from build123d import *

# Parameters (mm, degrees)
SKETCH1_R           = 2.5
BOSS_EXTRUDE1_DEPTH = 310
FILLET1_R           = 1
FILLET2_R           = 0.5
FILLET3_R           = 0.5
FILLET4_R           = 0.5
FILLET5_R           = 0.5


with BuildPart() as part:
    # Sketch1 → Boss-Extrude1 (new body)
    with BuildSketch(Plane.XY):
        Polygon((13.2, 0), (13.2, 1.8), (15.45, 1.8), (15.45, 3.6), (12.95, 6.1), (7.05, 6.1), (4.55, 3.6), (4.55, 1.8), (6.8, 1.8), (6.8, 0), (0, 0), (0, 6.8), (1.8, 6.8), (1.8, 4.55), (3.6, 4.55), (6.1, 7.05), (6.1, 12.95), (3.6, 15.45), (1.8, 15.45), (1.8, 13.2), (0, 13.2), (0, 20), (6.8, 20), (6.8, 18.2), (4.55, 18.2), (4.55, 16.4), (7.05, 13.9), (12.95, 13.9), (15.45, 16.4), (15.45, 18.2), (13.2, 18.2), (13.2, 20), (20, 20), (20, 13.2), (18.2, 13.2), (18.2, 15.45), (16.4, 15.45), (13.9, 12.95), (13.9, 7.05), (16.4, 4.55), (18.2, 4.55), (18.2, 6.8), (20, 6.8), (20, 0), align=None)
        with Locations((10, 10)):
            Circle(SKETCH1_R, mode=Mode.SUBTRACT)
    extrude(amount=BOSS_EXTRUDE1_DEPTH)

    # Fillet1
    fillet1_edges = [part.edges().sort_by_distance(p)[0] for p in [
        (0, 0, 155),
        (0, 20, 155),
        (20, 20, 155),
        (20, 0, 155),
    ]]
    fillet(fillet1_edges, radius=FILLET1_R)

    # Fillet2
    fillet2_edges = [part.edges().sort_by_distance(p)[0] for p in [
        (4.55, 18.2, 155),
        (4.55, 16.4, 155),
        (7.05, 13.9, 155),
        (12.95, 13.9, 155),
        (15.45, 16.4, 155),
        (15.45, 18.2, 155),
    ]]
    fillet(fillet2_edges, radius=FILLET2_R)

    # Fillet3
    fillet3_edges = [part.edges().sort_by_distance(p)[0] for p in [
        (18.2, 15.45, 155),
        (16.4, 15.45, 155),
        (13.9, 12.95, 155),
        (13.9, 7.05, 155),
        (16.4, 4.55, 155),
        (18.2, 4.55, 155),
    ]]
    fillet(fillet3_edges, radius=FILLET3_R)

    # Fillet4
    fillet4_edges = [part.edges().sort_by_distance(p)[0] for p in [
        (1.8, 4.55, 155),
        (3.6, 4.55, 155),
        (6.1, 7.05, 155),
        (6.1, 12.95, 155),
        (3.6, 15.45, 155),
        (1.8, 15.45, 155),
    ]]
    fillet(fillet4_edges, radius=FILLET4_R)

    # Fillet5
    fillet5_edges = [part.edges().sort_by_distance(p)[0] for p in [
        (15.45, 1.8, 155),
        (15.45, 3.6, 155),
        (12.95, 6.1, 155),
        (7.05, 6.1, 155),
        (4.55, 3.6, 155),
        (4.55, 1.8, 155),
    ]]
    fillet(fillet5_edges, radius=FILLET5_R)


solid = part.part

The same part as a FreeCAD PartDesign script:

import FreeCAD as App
import Part
import Sketcher


def edges_at(feature, points):
    """Names of the edges that pass closest to the given points."""
    edges = feature.Shape.Edges
    near = lambda p: min(range(len(edges)), key=lambda i: edges[i].distToShape(Part.Vertex(*p))[0])
    return sorted({f"Edge{near(p) + 1}" for p in points})


def add_polygon(sketch, points):
    """Adds a closed chain of lines whose ends are joined by coincident constraints."""
    first, n = sketch.GeometryCount, len(points)
    for a, b in zip(points, points[1:] + points[:1]):
        sketch.addGeometry(Part.LineSegment(App.Vector(*a, 0), App.Vector(*b, 0)), False)
    for i in range(n):
        sketch.addConstraint(Sketcher.Constraint("Coincident", first + i, 2, first + (i + 1) % n, 1))

doc = App.newDocument("Part")
body = doc.addObject("PartDesign::Body", "Body")

# Sketch on XY plane
sketch1 = body.newObject("Sketcher::SketchObject", "Sketch")
sketch1.AttachmentSupport = (doc.getObject("XY_Plane"), [""])
sketch1.MapMode = "FlatFace"
add_polygon(sketch1, [(13.2, 1.8), (13.2, 0), (20, 0), (20, 6.8), (18.2, 6.8), (18.2, 4.5), (16.4, 4.5), (13.9, 7), (13.9, 12.9), (16.4, 15.4), (18.2, 15.4), (18.2, 13.2), (20, 13.2), (20, 20), (13.2, 20), (13.2, 18.2), (15.4, 18.2), (15.4, 16.4), (12.9, 13.9), (7, 13.9), (4.5, 16.4), (4.5, 18.2), (6.8, 18.2), (6.8, 20), (0, 20), (0, 13.2), (1.8, 13.2), (1.8, 15.4), (3.6, 15.4), (6.1, 12.9), (6.1, 7), (3.6, 4.5), (1.8, 4.5), (1.8, 6.8), (0, 6.8), (0, 0), (6.8, 0), (6.8, 1.8), (4.5, 1.8), (4.5, 3.6), (7, 6.1), (12.9, 6.1), (15.4, 3.6), (15.4, 1.8)])  # lines 0-43
sketch1.addGeometry(Part.Circle(App.Vector(10, 10, 0), App.Vector(0, 0, 1), 2.5), False)  # 44
sketch1.addConstraint([
    Sketcher.Constraint("Vertical", 0),
    Sketcher.Constraint("Horizontal", 1),
    Sketcher.Constraint("Vertical", 2),
    Sketcher.Constraint("Horizontal", 3),
    Sketcher.Constraint("Vertical", 4),
    Sketcher.Constraint("Horizontal", 5),
    Sketcher.Constraint("Vertical", 7),
    Sketcher.Constraint("Horizontal", 9),
    Sketcher.Constraint("Vertical", 10),
    Sketcher.Constraint("Horizontal", 11),
    Sketcher.Constraint("Vertical", 12),
    Sketcher.Constraint("Horizontal", 13),
    Sketcher.Constraint("Vertical", 14),
    Sketcher.Constraint("Horizontal", 15),
    Sketcher.Constraint("Vertical", 16),
    Sketcher.Constraint("Horizontal", 18),
    Sketcher.Constraint("Vertical", 20),
    Sketcher.Constraint("Horizontal", 21),
    Sketcher.Constraint("Vertical", 22),
    Sketcher.Constraint("Horizontal", 23),
    Sketcher.Constraint("Vertical", 24),
    Sketcher.Constraint("Horizontal", 25),
    Sketcher.Constraint("Vertical", 26),
    Sketcher.Constraint("Horizontal", 27),
    Sketcher.Constraint("Vertical", 29),
    Sketcher.Constraint("Horizontal", 31),
    Sketcher.Constraint("Vertical", 32),
    Sketcher.Constraint("Horizontal", 33),
    Sketcher.Constraint("Vertical", 34),
    Sketcher.Constraint("Horizontal", 35),
    Sketcher.Constraint("Vertical", 36),
    Sketcher.Constraint("Horizontal", 37),
    Sketcher.Constraint("Vertical", 38),
    Sketcher.Constraint("Horizontal", 40),
    Sketcher.Constraint("Vertical", 42),
    Sketcher.Constraint("Horizontal", 43),
    Sketcher.Constraint("Coincident", 34, 2, -1, 1),
    Sketcher.Constraint("PointOnObject", 0, 2, -1),
    Sketcher.Constraint("PointOnObject", 23, 2, -2),
    Sketcher.Constraint("Perpendicular", 6, 8),
    Sketcher.Constraint("Parallel", 8, 17),
    Sketcher.Constraint("Perpendicular", 17, 19),
    Sketcher.Constraint("Parallel", 19, 28),
    Sketcher.Constraint("Perpendicular", 28, 30),
    Sketcher.Constraint("Parallel", 30, 39),
    Sketcher.Constraint("Perpendicular", 39, 41),
    Sketcher.Constraint("Horizontal", 16, 2, 19, 2),
    Sketcher.Constraint("Horizontal", 15, 2, 20, 2),
    Sketcher.Constraint("Horizontal", 13, 2, 22, 2),
    Sketcher.Constraint("Horizontal", 11, 2, 24, 2),
    Sketcher.Constraint("Horizontal", 9, 2, 26, 2),
    Sketcher.Constraint("Horizontal", 7, 2, 28, 2),
    Sketcher.Constraint("Horizontal", 6, 2, 29, 2),
    Sketcher.Constraint("Horizontal", 5, 2, 30, 2),
    Sketcher.Constraint("Horizontal", 3, 2, 32, 2),
    Sketcher.Constraint("Horizontal", 38, 2, 41, 2),
    Sketcher.Constraint("Horizontal", 37, 2, 42, 2),
    Sketcher.Constraint("Vertical", 5, 2, 8, 2),
    Sketcher.Constraint("Vertical", 4, 2, 9, 2),
    Sketcher.Constraint("Vertical", 2, 2, 11, 2),
    Sketcher.Constraint("Vertical", 0, 2, 13, 2),
    Sketcher.Constraint("Vertical", 27, 2, 30, 2),
    Sketcher.Constraint("Vertical", 26, 2, 31, 2),
    Sketcher.Constraint("Vertical", 22, 2, 35, 2),
    Sketcher.Constraint("Vertical", 20, 2, 37, 2),
    Sketcher.Constraint("Vertical", 18, 2, 39, 2),
    Sketcher.Constraint("Vertical", 17, 2, 40, 2),
    Sketcher.Constraint("Equal", 3, 5),
    Sketcher.Constraint("Equal", 15, 21),
    Sketcher.Constraint("Equal", 13, 23),
    Sketcher.Constraint("Equal", 11, 25),
    Sketcher.Constraint("Equal", 25, 27),
    Sketcher.Constraint("Equal", 33, 0),
    Sketcher.Constraint("Equal", 35, 2),
    Sketcher.Constraint("Equal", 43, 4),
    Sketcher.Constraint("Equal", 40, 7),
    Sketcher.Constraint("Equal", 4, 10),
    Sketcher.Constraint("Equal", 2, 12),
    Sketcher.Constraint("Equal", 0, 14),
    Sketcher.Constraint("Equal", 14, 16),
    Sketcher.Constraint("Equal", 36, 38),
    Sketcher.Constraint("Equal", 8, 17),
    Sketcher.Constraint("Diameter", 44, 5.0),
    Sketcher.Constraint("DistanceX", 1, 1, 1, 2, 6.8),
    Sketcher.Constraint("DistanceX", 3, 2, 3, 1, 1.8),
    Sketcher.Constraint("DistanceX", 18, 2, 18, 1, 5.9),
    Sketcher.Constraint("DistanceX", -1, 1, 44, 3, 10.0),
    Sketcher.Constraint("DistanceY", -1, 1, 44, 3, 10.0),
    Sketcher.Constraint("DistanceX", -1, 1, 1, 2, 20.0),
    Sketcher.Constraint("DistanceX", 15, 1, 15, 2, 2.25),
])
pad1 = body.newObject("PartDesign::Pad", "Pad")
pad1.Profile = sketch1
pad1.Length = 310
doc.recompute()

fillet = body.newObject("PartDesign::Fillet", "Fillet")
fillet.Base = (pad1, edges_at(pad1, [
    (0, 0, 155),
    (0, 20, 155),
    (20, 20, 155),
    (20, 0, 155),
]))
fillet.Radius = 1
doc.recompute()

fillet2 = body.newObject("PartDesign::Fillet", "Fillet001")
fillet2.Base = (fillet, edges_at(fillet, [
    (4.55, 18.2, 155),
    (4.55, 16.4, 155),
    (7.05, 13.9, 155),
    (12.95, 13.9, 155),
    (15.45, 16.4, 155),
    (15.45, 18.2, 155),
]))
fillet2.Radius = 0.5
doc.recompute()

fillet3 = body.newObject("PartDesign::Fillet", "Fillet002")
fillet3.Base = (fillet2, edges_at(fillet2, [
    (18.2, 15.45, 155),
    (16.4, 15.45, 155),
    (13.9, 12.95, 155),
    (13.9, 7.05, 155),
    (16.4, 4.55, 155),
    (18.2, 4.55, 155),
]))
fillet3.Radius = 0.5
doc.recompute()

fillet4 = body.newObject("PartDesign::Fillet", "Fillet003")
fillet4.Base = (fillet3, edges_at(fillet3, [
    (1.8, 4.55, 155),
    (3.6, 4.55, 155),
    (6.1, 7.05, 155),
    (6.1, 12.95, 155),
    (3.6, 15.45, 155),
    (1.8, 15.45, 155),
]))
fillet4.Radius = 0.5
doc.recompute()

fillet5 = body.newObject("PartDesign::Fillet", "Fillet004")
fillet5.Base = (fillet4, edges_at(fillet4, [
    (15.45, 1.8, 155),
    (15.45, 3.6, 155),
    (12.95, 6.1, 155),
    (7.05, 6.1, 155),
    (4.55, 3.6, 155),
    (4.55, 1.8, 155),
]))
fillet5.Radius = 0.5

doc.recompute()
